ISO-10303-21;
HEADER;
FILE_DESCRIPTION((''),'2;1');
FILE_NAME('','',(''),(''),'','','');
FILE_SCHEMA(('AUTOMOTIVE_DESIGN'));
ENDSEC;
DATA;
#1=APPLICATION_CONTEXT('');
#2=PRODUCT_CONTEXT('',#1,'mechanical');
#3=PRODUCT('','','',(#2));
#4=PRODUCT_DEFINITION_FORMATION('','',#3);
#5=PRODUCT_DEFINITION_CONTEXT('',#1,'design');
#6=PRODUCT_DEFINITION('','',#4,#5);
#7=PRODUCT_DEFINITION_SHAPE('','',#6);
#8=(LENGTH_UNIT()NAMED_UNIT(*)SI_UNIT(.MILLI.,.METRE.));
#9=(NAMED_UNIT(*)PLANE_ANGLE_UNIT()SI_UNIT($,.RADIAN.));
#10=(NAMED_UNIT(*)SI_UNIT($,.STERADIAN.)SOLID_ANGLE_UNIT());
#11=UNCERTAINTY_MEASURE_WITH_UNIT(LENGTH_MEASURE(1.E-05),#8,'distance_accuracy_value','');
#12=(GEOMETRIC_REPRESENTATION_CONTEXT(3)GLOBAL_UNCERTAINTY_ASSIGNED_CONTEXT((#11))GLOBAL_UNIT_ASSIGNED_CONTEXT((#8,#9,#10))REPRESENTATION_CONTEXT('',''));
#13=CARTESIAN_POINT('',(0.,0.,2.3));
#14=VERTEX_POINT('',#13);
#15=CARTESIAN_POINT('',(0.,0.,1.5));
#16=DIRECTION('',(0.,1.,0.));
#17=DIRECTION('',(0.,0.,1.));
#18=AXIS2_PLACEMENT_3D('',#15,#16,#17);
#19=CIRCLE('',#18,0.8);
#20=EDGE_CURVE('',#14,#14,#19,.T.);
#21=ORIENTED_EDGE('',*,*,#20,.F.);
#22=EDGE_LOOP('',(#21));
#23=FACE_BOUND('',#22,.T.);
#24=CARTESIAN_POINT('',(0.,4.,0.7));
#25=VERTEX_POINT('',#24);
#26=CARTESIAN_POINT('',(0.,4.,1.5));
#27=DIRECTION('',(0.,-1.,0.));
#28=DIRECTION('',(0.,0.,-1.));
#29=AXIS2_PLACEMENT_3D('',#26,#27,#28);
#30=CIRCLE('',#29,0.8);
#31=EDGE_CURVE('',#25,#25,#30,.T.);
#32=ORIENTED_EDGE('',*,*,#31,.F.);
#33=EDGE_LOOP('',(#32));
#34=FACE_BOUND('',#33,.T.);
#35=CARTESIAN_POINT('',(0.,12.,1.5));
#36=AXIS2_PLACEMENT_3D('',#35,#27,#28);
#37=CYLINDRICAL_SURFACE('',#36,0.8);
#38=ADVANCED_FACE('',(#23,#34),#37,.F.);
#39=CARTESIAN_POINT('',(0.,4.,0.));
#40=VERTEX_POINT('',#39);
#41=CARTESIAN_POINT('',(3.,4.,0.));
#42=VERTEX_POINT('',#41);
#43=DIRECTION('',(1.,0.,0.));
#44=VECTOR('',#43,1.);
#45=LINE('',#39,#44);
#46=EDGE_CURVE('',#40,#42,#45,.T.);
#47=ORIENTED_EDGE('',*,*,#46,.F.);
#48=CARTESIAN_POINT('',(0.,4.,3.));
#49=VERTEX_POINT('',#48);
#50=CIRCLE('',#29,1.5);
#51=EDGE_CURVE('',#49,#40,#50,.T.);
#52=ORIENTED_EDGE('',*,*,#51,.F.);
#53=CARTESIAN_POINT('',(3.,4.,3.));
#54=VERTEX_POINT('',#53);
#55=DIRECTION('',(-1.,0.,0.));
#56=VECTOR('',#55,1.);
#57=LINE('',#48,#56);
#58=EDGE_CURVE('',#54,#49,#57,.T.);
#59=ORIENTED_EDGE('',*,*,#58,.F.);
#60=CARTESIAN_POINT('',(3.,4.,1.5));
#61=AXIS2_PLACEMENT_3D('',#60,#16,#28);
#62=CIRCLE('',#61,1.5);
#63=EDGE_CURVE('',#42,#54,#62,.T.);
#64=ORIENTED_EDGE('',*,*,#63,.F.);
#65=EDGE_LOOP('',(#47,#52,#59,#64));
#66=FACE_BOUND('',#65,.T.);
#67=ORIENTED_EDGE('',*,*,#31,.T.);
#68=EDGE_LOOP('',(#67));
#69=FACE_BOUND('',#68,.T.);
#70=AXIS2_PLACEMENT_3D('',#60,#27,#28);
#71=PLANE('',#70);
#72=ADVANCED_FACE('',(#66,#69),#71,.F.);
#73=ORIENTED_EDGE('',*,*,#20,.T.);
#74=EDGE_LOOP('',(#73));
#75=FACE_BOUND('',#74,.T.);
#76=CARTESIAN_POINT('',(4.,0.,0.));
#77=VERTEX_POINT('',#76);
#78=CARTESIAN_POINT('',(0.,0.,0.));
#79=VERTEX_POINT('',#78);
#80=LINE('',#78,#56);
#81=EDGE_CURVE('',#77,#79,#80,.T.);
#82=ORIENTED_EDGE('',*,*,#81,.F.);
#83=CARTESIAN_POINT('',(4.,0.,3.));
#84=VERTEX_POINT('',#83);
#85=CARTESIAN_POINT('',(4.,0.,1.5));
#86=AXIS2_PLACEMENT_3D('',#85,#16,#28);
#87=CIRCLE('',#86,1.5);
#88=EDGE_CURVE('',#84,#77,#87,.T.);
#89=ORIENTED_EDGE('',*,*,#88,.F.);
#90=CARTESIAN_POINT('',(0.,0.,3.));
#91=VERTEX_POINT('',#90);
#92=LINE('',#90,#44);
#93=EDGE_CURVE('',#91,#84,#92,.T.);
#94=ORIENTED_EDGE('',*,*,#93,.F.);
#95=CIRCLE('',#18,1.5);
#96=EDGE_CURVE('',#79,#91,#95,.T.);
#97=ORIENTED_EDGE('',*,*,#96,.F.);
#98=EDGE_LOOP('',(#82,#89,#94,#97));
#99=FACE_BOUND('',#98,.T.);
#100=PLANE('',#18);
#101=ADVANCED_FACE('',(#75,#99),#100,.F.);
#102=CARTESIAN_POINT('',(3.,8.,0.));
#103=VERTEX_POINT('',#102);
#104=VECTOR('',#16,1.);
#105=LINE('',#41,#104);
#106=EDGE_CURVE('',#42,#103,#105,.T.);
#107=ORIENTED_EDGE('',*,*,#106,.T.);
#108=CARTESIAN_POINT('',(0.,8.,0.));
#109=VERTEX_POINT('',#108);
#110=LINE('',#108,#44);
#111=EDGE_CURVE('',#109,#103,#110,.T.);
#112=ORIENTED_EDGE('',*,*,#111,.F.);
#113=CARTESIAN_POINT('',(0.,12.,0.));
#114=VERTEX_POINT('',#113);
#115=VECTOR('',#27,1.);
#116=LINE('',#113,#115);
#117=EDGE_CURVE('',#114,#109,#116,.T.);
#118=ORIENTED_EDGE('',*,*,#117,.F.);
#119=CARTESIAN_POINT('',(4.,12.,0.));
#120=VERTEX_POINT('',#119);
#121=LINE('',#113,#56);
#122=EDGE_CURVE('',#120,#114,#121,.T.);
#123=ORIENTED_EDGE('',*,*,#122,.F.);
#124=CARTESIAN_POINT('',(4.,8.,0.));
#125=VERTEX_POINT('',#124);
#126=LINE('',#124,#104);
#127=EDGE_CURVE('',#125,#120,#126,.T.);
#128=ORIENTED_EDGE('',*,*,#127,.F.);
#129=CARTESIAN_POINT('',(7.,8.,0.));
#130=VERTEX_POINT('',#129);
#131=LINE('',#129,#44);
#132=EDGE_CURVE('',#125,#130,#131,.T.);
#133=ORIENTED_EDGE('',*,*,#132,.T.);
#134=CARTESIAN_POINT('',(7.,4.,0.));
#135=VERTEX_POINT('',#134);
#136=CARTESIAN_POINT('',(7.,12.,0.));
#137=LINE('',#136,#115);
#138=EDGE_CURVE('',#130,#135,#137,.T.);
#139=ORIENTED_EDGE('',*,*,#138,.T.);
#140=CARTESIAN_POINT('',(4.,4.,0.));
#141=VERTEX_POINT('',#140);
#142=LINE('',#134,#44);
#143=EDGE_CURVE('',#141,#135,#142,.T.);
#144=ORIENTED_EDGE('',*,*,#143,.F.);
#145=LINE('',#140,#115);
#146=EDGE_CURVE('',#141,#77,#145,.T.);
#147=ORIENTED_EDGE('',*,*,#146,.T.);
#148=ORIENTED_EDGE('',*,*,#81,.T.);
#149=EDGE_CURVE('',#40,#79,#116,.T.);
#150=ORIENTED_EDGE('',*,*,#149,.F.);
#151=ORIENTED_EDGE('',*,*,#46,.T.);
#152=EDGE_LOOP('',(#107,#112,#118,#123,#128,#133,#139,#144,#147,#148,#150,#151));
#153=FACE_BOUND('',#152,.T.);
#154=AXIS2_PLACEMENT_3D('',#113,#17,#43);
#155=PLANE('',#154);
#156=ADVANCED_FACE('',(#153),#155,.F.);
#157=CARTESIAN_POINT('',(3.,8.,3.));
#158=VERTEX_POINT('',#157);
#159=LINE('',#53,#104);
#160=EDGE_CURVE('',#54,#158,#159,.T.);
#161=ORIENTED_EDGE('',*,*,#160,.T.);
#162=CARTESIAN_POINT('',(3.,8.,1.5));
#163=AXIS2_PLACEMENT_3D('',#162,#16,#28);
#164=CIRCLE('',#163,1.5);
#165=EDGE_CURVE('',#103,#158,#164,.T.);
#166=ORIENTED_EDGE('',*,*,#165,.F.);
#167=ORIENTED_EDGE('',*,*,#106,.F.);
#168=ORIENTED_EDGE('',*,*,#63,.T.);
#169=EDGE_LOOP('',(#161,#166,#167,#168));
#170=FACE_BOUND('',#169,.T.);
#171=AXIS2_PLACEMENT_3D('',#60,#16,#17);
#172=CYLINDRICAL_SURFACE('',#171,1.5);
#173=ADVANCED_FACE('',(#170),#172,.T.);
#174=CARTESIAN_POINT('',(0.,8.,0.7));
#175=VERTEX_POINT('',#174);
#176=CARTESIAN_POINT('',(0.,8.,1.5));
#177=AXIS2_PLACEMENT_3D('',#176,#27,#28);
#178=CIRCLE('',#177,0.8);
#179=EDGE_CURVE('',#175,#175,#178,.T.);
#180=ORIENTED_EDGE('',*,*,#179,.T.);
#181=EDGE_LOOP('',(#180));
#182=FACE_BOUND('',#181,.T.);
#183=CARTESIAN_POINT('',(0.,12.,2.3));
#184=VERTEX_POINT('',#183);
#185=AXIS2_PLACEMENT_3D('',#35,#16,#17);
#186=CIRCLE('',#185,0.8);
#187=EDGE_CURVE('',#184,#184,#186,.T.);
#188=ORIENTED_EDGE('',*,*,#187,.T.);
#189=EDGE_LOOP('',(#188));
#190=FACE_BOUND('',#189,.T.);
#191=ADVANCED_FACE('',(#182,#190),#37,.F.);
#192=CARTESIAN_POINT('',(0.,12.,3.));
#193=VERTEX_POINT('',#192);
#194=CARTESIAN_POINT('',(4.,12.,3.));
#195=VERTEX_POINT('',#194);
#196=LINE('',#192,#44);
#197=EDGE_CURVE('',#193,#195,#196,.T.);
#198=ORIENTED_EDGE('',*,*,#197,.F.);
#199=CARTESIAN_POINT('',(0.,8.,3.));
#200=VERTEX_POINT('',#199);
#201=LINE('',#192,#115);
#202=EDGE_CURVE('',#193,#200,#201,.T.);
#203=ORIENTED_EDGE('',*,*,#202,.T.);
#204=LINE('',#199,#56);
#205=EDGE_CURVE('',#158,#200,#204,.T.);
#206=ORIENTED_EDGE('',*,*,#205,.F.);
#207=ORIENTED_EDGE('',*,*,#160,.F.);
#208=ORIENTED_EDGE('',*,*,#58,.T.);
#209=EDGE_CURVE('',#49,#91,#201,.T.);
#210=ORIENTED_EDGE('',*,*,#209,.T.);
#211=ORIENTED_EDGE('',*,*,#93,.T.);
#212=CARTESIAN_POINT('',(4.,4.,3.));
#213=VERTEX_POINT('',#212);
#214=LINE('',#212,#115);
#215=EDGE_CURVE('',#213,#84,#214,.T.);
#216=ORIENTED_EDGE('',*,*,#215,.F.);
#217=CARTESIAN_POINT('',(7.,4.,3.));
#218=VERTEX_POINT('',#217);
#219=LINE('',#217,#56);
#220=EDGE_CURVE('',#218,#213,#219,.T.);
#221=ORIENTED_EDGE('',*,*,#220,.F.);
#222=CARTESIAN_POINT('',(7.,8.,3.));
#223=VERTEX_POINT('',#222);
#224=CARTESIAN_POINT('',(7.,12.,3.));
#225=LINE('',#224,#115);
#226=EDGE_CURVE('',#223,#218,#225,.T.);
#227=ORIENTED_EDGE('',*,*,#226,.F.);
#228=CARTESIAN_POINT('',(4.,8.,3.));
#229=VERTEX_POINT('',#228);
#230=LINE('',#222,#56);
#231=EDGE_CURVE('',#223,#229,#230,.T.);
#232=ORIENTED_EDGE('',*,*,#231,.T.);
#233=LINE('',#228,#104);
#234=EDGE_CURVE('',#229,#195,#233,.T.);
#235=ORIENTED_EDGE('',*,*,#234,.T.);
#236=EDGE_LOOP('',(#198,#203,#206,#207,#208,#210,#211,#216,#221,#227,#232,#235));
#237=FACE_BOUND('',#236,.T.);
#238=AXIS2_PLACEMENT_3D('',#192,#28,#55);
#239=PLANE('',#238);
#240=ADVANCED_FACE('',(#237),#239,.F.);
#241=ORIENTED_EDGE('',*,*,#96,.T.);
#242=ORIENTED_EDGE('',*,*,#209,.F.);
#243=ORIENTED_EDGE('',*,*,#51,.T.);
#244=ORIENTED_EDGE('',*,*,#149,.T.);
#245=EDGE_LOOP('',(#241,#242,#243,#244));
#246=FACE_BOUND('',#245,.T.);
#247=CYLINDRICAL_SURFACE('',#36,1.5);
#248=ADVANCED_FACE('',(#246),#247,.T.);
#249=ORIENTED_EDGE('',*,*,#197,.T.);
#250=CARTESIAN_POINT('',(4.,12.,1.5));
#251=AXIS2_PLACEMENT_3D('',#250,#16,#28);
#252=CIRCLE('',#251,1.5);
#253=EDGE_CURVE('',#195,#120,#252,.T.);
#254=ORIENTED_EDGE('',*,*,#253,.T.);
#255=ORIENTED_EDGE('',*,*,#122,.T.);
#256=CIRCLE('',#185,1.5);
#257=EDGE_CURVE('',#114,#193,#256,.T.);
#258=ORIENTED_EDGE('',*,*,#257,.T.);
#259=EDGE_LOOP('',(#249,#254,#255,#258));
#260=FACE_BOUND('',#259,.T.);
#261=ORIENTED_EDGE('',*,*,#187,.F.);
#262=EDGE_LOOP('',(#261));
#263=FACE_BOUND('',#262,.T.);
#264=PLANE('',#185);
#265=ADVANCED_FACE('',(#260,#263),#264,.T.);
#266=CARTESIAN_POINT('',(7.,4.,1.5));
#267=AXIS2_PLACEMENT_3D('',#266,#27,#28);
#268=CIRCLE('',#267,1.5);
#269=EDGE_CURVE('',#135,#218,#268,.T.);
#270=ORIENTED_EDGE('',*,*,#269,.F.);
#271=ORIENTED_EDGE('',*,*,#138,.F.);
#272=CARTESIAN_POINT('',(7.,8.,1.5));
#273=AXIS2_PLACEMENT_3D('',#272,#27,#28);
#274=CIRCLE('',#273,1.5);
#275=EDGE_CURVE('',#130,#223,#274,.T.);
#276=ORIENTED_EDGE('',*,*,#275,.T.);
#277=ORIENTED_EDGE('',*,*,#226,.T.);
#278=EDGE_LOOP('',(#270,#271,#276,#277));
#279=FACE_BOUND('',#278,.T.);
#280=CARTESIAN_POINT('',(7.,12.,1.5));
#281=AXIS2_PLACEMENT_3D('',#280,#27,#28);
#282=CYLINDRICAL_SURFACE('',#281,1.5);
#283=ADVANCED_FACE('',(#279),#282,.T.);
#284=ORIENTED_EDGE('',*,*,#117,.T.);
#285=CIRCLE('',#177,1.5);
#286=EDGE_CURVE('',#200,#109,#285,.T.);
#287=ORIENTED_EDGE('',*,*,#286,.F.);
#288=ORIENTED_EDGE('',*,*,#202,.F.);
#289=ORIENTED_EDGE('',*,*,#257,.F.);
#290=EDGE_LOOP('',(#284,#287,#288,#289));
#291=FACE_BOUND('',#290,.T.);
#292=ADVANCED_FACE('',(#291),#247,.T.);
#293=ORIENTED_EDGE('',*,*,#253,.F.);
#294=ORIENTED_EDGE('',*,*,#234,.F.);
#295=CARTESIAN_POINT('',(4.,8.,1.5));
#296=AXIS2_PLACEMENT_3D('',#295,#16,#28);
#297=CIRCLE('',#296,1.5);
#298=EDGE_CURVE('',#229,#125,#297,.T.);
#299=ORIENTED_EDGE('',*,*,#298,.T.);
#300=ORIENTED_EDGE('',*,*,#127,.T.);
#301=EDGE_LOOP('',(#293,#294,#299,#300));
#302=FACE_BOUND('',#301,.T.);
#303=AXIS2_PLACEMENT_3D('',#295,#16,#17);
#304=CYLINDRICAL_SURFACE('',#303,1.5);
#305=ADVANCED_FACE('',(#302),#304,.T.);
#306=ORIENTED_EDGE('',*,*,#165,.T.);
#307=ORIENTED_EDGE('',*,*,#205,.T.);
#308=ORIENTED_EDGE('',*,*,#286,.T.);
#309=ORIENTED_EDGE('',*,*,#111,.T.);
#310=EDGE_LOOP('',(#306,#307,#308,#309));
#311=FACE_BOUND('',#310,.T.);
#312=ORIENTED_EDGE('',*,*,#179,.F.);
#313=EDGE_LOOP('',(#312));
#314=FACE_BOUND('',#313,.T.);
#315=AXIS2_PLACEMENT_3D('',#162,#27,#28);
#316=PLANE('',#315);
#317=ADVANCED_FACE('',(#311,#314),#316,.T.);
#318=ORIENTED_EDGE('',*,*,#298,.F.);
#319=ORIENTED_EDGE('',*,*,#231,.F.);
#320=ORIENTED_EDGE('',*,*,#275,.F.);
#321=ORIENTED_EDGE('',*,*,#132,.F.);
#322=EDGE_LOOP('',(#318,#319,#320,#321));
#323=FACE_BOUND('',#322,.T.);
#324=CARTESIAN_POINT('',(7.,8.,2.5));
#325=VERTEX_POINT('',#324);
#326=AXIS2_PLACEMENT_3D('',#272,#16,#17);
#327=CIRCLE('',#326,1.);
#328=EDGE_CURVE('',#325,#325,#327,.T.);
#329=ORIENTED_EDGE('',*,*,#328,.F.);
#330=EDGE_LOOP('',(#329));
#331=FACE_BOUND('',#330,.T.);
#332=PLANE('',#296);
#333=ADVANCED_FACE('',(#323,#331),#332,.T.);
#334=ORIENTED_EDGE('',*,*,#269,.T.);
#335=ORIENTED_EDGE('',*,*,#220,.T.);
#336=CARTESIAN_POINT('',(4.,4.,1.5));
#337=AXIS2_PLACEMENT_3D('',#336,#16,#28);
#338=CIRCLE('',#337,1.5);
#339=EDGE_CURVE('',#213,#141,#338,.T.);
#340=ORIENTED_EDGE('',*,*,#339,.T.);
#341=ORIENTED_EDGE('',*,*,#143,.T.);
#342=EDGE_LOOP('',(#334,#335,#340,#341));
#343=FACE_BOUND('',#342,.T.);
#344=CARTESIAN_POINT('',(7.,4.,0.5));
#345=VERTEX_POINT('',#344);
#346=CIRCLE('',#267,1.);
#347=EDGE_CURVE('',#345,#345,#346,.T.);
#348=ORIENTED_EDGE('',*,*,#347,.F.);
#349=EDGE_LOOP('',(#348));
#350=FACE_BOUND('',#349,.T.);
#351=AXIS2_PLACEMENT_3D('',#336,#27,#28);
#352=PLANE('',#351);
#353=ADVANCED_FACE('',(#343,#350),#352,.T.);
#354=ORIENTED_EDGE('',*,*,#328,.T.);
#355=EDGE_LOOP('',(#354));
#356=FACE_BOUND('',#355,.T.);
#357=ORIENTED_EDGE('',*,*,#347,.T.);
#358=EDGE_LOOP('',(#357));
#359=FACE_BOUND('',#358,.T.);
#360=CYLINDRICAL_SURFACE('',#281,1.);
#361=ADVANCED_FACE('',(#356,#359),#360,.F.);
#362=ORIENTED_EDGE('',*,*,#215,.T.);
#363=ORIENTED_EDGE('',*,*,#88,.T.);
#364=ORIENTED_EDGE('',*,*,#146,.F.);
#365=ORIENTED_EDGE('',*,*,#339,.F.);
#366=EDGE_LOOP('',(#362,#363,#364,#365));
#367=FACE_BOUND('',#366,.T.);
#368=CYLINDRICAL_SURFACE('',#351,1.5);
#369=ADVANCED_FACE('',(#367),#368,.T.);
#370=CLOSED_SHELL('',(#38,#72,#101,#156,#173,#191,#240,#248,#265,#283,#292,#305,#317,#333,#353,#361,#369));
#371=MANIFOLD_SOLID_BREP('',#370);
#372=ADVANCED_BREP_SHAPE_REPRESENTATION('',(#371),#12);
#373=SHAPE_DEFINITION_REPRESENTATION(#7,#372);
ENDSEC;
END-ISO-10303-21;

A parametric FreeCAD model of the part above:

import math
import FreeCAD as App
import Part
import Sketcher

V = App.Vector
Q = App.Units.Quantity

doc = App.newDocument("Part")
body = doc.addObject("PartDesign::Body", "Body")

sketch1 = doc.addObject("Sketcher::SketchObject", "Sketch")
body.addObject(sketch1)
sketch1.AttachmentSupport = (doc.XZ_Plane, [""])
sketch1.MapMode = "FlatFace"
sketch1.addGeometry([
    Part.LineSegment(V(7, 0, 0), V(0, 0, 0)),
    Part.ArcOfCircle(Part.Circle(V(0, 1.5, 0), V(0, 0, 1), 1.5), math.radians(90), math.radians(270)),
    Part.LineSegment(V(0, 3, 0), V(7, 3, 0)),
    Part.ArcOfCircle(Part.Circle(V(7, 1.5, 0), V(0, 0, 1), 1.5), math.radians(-90), math.radians(90)),
    Part.Circle(V(7, 1.5, 0), V(0, 0, 1), 1),
    Part.Circle(V(0, 1.5, 0), V(0, 0, 1), 0.8),
], False)
sketch1.addConstraint([
    Sketcher.Constraint("Tangent", 0, 2, 1, 2),
    Sketcher.Constraint("Tangent", 1, 1, 2, 1),
    Sketcher.Constraint("Tangent", 2, 2, 3, 2),
    Sketcher.Constraint("Tangent", 3, 1, 0, 1),
    Sketcher.Constraint("Horizontal", 0),
    Sketcher.Constraint("Horizontal", 2),
    Sketcher.Constraint("Coincident", 0, 2, -1, 1),
    Sketcher.Constraint("Coincident", 4, 3, 3, 3),
    Sketcher.Constraint("Coincident", 5, 3, 1, 3),
    Sketcher.Constraint("Diameter", 4, Q("2 mm")),
    Sketcher.Constraint("Diameter", 5, Q("1.6 mm")),
    Sketcher.Constraint("Radius", 1, Q("1.5 mm")),
    Sketcher.Constraint("DistanceX", 0, 2, 0, 1, Q("7 mm")),
])
pad1 = doc.addObject("PartDesign::Pad", "Pad")
body.addObject(pad1)
pad1.Profile = sketch1
pad1.Length = 12
pad1.Reversed = True

sketch2 = doc.addObject("Sketcher::SketchObject", "Sketch001")
body.addObject(sketch2)
sketch2.AttachmentSupport = (doc.XZ_Plane, [""])
sketch2.MapMode = "FlatFace"
sketch2.addGeometry([
    Part.LineSegment(V(4, 0, 0), V(7, 0, 0)),
    Part.ArcOfCircle(Part.Circle(V(7, 1.5, 0), V(0, 0, 1), 1.5), math.radians(-90), math.radians(90)),
    Part.LineSegment(V(7, 3, 0), V(4, 3, 0)),
    Part.ArcOfCircle(Part.Circle(V(4, 1.5, 0), V(0, 0, 1), 1.5), math.radians(-90), math.radians(90)),
], False)
sketch2.addConstraint([
    Sketcher.Constraint("Tangent", 0, 2, 1, 1),
    Sketcher.Constraint("Tangent", 1, 2, 2, 1),
    Sketcher.Constraint("Tangent", 2, 2, 3, 2),
    Sketcher.Constraint("Tangent", 3, 1, 0, 1),
    Sketcher.Constraint("Horizontal", 0),
    Sketcher.Constraint("Horizontal", 2),
    Sketcher.Constraint("PointOnObject", 0, 2, -1),
    Sketcher.Constraint("Radius", 1, Q("1.5 mm")),
    Sketcher.Constraint("DistanceX", 0, 1, 0, 2, Q("3 mm")),
    Sketcher.Constraint("DistanceX", -1, 1, 1, 3, Q("7 mm")),
])
pocket1 = doc.addObject("PartDesign::Pocket", "Pocket")
body.addObject(pocket1)
pocket1.Profile = sketch2
pocket1.Length = 4
doc.recompute()

datumplane = doc.addObject("PartDesign::Plane", "DatumPlane")
body.addObject(datumplane)
datumplane.AttachmentSupport = (doc.XZ_Plane, [""])
datumplane.MapMode = "FlatFace"
datumplane.AttachmentOffset = App.Placement(V(0, 0, -6), App.Rotation())
mirrored = doc.addObject("PartDesign::Mirrored", "Mirrored")
body.addObject(mirrored)
mirrored.Originals = [pocket1]
mirrored.MirrorPlane = (datumplane, [""])
body.Tip = mirrored

sketch3 = doc.addObject("Sketcher::SketchObject", "Sketch002")
body.addObject(sketch3)
sketch3.AttachmentSupport = (doc.XZ_Plane, [""])
sketch3.MapMode = "FlatFace"
sketch3.AttachmentOffset = App.Placement(V(0, 0, -6), App.Rotation())
sketch3.addGeometry([
    Part.LineSegment(V(3, 3, 0), V(0, 3, 0)),
    Part.ArcOfCircle(Part.Circle(V(0, 1.5, 0), V(0, 0, 1), 1.5), math.radians(90), math.radians(270)),
    Part.LineSegment(V(0, 0, 0), V(3, 0, 0)),
    Part.ArcOfCircle(Part.Circle(V(3, 1.5, 0), V(0, 0, 1), 1.5), math.radians(90), math.radians(270)),
], False)
sketch3.addConstraint([
    Sketcher.Constraint("Tangent", 0, 2, 1, 1),
    Sketcher.Constraint("Tangent", 1, 2, 2, 1),
    Sketcher.Constraint("Tangent", 2, 2, 3, 2),
    Sketcher.Constraint("Tangent", 3, 1, 0, 1),
    Sketcher.Constraint("Horizontal", 0),
    Sketcher.Constraint("Horizontal", 2),
    Sketcher.Constraint("Coincident", 1, 2, -1, 1),
    Sketcher.Constraint("Radius", 1, Q("1.5 mm")),
    Sketcher.Constraint("DistanceX", 0, 2, 0, 1, Q("3 mm")),
])
pocket2 = doc.addObject("PartDesign::Pocket", "Pocket001")
body.addObject(pocket2)
pocket2.Profile = sketch3
pocket2.Type = "TwoLengths"
pocket2.Length = 2
pocket2.Length2 = 2
pocket2.Reversed = True

doc.recompute()
